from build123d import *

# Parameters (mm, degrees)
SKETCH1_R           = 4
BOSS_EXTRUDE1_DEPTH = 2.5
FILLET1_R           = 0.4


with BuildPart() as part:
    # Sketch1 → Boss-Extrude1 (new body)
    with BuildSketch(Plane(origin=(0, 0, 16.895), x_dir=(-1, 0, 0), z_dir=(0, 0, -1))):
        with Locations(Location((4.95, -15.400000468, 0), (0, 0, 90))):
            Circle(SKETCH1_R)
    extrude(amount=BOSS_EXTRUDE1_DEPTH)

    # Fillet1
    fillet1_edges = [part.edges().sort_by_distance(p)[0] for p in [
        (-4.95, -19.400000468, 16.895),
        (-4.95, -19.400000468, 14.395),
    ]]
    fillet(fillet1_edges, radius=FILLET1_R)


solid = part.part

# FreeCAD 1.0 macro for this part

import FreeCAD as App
import Part
import Sketcher
from FreeCAD import Vector


def edges_at(feature, points):
    """Names of the edges that pass closest to the given points."""
    edges = feature.Shape.Edges
    near = lambda p: min(range(len(edges)), key=lambda i: edges[i].distToShape(Part.Vertex(*p))[0])
    return sorted({f"Edge{near(p) + 1}" for p in points})

doc = App.newDocument("Part")
params = doc.addObject("Spreadsheet::Sheet", "Params")
for row, (alias, value) in enumerate([
    ("sketch1_diameter", "8 mm"),
    ("pad1_length", "2.5 mm"),
    ("fillet_radius", "0.4 mm"),
], start=1):
    params.set(f"A{row}", alias)
    params.set(f"B{row}", "=" + value)
    params.setAlias(f"B{row}", alias)

body = doc.addObject("PartDesign::Body", "Body")

# Sketch on XY plane
sketch1 = doc.addObject("Sketcher::SketchObject", "Sketch")
body.addObject(sketch1)
sketch1.AttachmentSupport = (doc.XY_Plane, [""])
sketch1.MapMode = "FlatFace"
sketch1.AttachmentOffset = App.Placement(Vector(0, 0, 16.895), App.Rotation())
sketch1.addGeometry(Part.Circle(Vector(-4.95, -15.4, 0), Vector(0, 0, 1), 4), False)
sketch1.addConstraint([
    Sketcher.Constraint("Diameter", 0, 8.0),
    Sketcher.Constraint("DistanceY", 0, 3, -1, 1, 15.4),
    Sketcher.Constraint("DistanceX", 0, 3, -1, 1, 4.95),
])
sketch1.setExpression("Constraints[0]", "Params.sketch1_diameter")
pad1 = doc.addObject("PartDesign::Pad", "Pad")
body.addObject(pad1)
pad1.Profile = sketch1
pad1.setExpression("Length", "Params.pad1_length")
pad1.Reversed = True
doc.recompute()

fillet = doc.addObject("PartDesign::Fillet", "Fillet")
body.addObject(fillet)
fillet.Base = (pad1, edges_at(pad1, [(-4.95, -19.4, 16.895), (-4.95, -19.4, 14.395)]))
fillet.setExpression("Radius", "Params.fillet_radius")

doc.recompute()
